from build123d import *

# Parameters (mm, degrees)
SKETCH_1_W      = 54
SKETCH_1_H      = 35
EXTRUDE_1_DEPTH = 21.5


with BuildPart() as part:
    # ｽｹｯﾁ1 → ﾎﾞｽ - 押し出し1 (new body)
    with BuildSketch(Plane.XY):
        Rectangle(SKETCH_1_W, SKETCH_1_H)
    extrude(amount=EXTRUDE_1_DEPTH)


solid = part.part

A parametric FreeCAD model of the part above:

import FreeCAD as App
import Part
import Sketcher
from FreeCAD import Vector

doc = App.newDocument("Part")
body = doc.addObject("PartDesign::Body", "Body")

# Sketch on XY plane
sketch1 = body.newObject("Sketcher::SketchObject", "Sketch")
sketch1.AttachmentSupport = (doc.getObject("XY_Plane"), [""])
sketch1.MapMode = "FlatFace"
sketch1.addGeometry(Part.LineSegment(Vector(-27, 18, 0), Vector(-27, -18, 0)), False)
sketch1.addGeometry(Part.LineSegment(Vector(-27, -18, 0), Vector(27, -18, 0)), False)
sketch1.addGeometry(Part.LineSegment(Vector(27, -18, 0), Vector(27, 18, 0)), False)
sketch1.addGeometry(Part.LineSegment(Vector(27, 18, 0), Vector(-27, 18, 0)), False)
sketch1.addConstraint(Sketcher.Constraint("Coincident", 0, 2, 1, 1))
sketch1.addConstraint(Sketcher.Constraint("Coincident", 1, 2, 2, 1))
sketch1.addConstraint(Sketcher.Constraint("Coincident", 2, 2, 3, 1))
sketch1.addConstraint(Sketcher.Constraint("Coincident", 3, 2, 0, 1))
sketch1.addConstraint(Sketcher.Constraint("Vertical", 0))
sketch1.addConstraint(Sketcher.Constraint("Horizontal", 1))
sketch1.addConstraint(Sketcher.Constraint("Vertical", 2))
sketch1.addConstraint(Sketcher.Constraint("Horizontal", 3))
sketch1.addConstraint(Sketcher.Constraint("Symmetric", 0, 2, 2, 2, -1, 1))
sketch1.addConstraint(Sketcher.Constraint("DistanceX", 1, 1, 1, 2, 54.0))
sketch1.addConstraint(Sketcher.Constraint("DistanceY", 0, 2, 0, 1, 35.0))
pad1 = body.newObject("PartDesign::Pad", "Pad")
pad1.Profile = sketch1
pad1.Length = 21.5

doc.recompute()
